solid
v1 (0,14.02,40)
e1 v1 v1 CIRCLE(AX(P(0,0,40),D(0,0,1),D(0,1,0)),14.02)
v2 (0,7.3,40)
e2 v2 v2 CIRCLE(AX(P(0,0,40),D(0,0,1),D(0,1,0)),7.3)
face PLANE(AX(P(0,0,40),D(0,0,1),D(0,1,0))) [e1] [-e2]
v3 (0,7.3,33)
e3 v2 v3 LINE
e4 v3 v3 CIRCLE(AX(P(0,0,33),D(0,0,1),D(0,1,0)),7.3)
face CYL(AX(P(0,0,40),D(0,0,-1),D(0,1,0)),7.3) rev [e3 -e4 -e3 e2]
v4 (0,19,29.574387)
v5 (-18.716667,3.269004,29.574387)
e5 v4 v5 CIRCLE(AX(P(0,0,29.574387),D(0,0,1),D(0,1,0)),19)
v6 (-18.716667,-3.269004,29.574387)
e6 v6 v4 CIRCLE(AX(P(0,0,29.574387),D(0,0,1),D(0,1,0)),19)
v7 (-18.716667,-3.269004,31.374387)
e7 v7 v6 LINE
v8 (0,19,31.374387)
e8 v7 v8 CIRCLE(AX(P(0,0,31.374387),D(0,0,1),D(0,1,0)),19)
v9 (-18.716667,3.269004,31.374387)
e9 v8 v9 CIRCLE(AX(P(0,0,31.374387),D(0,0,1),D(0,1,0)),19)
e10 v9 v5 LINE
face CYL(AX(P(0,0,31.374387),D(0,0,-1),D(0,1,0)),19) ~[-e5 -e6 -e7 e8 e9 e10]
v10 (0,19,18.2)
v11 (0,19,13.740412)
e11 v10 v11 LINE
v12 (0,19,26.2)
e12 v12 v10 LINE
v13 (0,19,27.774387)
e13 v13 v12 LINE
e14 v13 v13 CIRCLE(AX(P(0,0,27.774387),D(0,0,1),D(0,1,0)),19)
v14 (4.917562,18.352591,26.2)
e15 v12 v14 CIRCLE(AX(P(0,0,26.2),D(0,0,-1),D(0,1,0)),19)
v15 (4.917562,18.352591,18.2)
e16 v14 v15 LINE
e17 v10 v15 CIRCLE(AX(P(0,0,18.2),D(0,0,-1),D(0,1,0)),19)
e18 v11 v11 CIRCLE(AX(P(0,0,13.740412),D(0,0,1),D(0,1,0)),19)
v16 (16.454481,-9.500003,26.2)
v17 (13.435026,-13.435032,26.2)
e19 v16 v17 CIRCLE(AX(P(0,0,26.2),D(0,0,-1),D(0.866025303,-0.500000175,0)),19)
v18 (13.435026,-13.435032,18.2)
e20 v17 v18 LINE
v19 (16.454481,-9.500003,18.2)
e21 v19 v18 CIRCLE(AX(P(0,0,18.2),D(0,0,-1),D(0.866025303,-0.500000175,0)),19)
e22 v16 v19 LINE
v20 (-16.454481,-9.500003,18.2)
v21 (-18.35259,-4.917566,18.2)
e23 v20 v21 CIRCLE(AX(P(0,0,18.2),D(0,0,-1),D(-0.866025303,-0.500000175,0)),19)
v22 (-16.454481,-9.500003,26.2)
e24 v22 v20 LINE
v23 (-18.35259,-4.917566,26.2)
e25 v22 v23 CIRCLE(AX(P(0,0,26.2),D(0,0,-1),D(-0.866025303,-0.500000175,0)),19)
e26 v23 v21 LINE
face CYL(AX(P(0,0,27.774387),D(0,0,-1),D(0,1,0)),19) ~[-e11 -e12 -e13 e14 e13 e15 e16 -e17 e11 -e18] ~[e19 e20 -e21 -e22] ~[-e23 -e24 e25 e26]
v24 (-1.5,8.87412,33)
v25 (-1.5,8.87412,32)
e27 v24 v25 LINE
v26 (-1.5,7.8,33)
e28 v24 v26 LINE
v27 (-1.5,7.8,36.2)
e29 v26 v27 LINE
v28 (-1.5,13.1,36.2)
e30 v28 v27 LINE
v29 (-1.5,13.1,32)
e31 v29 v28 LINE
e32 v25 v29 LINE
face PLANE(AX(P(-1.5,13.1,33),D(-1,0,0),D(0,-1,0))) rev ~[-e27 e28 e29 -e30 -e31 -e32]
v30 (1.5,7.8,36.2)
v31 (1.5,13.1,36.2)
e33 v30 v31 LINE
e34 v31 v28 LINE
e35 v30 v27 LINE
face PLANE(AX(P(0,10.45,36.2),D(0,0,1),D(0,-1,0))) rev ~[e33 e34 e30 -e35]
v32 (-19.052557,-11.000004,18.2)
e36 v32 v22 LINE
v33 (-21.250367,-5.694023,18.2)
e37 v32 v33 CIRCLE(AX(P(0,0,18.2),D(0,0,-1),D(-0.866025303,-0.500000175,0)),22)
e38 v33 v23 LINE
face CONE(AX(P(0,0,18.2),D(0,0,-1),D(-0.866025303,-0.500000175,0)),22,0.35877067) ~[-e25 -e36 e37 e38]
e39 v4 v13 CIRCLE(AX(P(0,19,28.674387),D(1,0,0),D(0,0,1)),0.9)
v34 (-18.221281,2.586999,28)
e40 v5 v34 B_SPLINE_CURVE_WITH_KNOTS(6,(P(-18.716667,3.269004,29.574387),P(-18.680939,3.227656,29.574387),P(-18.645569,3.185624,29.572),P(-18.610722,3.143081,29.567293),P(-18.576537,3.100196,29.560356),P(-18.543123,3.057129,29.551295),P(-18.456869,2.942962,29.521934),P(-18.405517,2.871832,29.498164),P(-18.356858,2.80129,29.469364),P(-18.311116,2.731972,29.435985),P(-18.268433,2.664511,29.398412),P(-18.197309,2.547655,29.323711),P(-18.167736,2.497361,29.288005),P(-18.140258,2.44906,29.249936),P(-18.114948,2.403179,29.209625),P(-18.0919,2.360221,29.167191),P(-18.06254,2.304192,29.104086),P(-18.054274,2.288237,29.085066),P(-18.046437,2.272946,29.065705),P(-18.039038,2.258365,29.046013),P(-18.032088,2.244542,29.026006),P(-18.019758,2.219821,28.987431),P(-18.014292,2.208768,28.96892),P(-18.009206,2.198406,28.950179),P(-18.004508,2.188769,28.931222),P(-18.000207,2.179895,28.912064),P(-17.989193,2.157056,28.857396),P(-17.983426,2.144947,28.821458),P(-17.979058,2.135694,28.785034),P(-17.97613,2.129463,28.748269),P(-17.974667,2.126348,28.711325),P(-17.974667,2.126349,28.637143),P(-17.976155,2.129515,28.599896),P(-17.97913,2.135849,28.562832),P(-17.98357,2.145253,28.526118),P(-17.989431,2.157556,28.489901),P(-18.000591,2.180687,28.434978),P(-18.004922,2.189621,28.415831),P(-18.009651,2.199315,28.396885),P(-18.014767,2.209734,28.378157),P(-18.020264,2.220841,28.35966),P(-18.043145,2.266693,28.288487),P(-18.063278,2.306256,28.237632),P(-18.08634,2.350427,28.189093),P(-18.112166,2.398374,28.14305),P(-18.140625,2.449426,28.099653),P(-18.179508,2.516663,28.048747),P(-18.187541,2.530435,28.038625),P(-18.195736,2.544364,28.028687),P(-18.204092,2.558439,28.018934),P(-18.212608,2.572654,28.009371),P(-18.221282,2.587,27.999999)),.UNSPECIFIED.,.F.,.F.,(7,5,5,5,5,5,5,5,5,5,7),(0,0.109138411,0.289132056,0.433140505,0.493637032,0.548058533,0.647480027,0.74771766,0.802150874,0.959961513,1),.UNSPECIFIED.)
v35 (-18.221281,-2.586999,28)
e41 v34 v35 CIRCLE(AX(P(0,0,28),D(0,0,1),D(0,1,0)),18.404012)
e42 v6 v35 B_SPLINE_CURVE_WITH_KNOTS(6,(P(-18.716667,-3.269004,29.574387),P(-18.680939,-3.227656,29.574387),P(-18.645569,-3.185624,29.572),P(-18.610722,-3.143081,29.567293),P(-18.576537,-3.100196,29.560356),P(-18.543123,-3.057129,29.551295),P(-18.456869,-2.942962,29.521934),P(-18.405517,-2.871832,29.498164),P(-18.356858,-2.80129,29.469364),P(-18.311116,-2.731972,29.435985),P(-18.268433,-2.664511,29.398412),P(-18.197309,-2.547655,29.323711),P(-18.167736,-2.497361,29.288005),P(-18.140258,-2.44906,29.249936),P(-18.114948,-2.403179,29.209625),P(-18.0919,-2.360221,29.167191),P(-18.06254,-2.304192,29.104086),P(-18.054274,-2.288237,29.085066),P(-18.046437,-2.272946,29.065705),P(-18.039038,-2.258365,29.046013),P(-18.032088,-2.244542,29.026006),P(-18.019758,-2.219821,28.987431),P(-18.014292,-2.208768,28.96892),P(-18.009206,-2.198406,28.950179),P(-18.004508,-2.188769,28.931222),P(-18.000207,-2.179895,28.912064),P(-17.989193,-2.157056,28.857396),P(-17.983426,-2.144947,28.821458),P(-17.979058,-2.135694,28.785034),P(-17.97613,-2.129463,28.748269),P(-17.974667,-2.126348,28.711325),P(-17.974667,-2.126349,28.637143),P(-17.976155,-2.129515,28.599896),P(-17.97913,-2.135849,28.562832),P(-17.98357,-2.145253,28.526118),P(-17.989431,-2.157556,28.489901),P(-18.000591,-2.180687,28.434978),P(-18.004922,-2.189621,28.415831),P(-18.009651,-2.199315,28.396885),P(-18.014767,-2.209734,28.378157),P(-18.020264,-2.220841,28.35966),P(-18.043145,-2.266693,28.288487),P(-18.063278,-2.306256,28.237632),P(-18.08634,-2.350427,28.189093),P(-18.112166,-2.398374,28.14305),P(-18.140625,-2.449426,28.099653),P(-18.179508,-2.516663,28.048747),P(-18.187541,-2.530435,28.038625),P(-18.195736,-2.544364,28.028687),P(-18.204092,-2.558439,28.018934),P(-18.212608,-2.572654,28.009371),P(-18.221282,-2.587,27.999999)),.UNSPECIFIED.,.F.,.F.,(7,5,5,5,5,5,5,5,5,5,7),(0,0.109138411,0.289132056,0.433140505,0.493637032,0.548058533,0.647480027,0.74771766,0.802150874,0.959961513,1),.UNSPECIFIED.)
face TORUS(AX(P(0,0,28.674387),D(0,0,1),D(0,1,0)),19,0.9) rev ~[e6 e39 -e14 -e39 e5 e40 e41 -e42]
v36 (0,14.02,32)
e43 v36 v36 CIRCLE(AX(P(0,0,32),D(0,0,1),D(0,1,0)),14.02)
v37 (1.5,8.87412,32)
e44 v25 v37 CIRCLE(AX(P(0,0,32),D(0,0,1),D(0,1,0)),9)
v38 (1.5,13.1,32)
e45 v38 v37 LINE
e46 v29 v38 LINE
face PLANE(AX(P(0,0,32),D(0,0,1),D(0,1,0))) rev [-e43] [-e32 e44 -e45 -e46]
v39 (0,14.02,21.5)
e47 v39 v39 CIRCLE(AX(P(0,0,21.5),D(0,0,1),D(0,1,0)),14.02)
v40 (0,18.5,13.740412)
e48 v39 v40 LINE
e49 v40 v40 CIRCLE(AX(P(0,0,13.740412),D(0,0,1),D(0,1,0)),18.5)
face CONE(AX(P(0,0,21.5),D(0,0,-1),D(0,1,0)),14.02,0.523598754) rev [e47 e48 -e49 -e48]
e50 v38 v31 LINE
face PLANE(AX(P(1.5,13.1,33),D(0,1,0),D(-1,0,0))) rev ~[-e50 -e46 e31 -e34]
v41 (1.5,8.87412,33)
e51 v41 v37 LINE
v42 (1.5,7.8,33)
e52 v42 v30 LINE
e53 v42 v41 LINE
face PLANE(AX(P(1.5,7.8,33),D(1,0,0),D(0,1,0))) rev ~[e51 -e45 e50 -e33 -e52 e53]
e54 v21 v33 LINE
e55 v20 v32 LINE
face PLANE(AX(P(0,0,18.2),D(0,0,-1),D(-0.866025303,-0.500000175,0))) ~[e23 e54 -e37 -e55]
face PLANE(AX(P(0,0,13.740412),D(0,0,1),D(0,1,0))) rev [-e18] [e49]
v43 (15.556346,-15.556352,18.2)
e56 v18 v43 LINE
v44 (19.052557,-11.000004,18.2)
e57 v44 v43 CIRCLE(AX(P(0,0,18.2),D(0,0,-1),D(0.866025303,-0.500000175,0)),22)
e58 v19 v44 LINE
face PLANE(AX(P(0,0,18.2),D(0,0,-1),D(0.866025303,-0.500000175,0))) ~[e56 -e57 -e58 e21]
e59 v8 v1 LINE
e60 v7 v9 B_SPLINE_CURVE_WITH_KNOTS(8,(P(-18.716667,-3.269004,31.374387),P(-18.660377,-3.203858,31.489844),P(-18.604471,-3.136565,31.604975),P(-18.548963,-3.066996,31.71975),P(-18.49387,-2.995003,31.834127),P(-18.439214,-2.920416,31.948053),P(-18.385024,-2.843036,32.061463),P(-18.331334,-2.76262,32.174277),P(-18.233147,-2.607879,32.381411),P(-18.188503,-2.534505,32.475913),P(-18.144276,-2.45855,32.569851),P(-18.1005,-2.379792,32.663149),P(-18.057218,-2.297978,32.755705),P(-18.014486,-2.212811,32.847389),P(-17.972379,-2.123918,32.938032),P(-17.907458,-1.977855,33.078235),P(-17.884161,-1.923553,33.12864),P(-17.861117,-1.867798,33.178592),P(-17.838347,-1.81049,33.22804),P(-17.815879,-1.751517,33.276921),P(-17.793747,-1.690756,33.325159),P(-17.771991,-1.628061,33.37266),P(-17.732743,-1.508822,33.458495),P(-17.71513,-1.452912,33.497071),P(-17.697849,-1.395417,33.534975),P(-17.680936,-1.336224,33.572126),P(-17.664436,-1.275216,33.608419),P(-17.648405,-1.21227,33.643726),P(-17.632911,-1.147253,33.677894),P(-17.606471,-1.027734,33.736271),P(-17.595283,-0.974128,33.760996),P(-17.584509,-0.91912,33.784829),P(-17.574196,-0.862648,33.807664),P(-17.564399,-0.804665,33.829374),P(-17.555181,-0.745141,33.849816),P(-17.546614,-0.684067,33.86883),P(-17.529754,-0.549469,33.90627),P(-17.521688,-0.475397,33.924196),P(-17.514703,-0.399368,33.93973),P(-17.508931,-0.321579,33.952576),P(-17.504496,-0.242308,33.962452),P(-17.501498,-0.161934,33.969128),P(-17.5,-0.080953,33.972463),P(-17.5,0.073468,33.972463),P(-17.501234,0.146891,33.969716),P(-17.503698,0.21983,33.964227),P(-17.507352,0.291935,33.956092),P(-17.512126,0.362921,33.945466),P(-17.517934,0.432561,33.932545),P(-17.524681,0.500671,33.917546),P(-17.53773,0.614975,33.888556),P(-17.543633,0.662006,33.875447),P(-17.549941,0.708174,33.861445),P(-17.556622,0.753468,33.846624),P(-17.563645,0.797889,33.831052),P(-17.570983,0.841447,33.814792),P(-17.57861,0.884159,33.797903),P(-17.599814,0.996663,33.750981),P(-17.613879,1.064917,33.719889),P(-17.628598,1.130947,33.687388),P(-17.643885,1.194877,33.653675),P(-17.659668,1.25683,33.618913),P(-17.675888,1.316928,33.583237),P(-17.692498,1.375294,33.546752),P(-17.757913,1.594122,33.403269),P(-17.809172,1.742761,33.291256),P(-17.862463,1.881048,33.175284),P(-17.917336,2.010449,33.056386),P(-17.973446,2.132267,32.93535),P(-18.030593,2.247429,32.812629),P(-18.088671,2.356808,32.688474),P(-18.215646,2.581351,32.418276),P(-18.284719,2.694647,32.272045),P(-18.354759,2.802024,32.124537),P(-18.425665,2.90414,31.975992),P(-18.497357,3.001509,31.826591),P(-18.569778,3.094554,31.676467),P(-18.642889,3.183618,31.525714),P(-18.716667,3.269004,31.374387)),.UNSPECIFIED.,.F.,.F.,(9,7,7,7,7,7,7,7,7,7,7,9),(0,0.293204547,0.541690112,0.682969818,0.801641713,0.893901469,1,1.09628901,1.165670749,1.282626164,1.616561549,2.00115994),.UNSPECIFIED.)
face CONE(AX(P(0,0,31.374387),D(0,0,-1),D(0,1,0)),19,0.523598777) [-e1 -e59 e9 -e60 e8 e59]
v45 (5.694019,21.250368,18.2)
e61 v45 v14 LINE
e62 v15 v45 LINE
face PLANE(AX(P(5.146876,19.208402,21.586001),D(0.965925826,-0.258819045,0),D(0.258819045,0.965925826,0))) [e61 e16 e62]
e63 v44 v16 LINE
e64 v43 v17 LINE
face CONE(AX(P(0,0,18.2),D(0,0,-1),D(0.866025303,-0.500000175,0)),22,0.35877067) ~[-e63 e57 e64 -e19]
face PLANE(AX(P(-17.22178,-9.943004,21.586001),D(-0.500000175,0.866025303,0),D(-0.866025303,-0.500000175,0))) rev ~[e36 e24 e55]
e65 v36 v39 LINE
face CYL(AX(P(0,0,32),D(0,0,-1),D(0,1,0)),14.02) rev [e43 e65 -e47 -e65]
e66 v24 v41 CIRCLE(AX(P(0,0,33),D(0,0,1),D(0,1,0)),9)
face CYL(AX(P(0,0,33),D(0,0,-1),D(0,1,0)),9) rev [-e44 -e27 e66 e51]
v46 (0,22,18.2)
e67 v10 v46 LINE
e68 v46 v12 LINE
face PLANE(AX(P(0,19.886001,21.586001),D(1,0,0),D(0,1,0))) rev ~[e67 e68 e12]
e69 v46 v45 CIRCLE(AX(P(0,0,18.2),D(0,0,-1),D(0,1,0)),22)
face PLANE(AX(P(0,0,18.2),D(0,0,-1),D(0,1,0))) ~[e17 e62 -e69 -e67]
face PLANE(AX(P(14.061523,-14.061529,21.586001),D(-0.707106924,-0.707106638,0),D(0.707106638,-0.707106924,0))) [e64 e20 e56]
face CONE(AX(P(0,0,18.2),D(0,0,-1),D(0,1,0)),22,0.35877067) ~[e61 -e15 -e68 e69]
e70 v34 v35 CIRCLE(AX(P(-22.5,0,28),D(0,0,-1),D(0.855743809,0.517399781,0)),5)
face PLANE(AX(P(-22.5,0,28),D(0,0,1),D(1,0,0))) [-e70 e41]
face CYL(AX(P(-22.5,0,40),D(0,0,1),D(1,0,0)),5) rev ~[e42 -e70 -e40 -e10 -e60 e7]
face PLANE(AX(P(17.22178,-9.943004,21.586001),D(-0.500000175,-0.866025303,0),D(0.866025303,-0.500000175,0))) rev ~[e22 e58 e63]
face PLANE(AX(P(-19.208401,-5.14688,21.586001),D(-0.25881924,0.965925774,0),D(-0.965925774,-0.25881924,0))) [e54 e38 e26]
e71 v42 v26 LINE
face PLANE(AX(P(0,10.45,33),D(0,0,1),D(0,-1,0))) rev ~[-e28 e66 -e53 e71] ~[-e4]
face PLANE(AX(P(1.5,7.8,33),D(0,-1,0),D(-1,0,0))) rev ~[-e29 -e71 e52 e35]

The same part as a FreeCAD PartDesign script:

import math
import FreeCAD as App
import Part
import Sketcher
from FreeCAD import Vector
Q = App.Units.Quantity

doc = App.newDocument("Part")
body = doc.addObject("PartDesign::Body", "Body")

# Sketch on YZ plane
sketch1 = doc.addObject("Sketcher::SketchObject", "Sketch")
body.addObject(sketch1)
sketch1.AttachmentSupport = (doc.YZ_Plane, [""])
sketch1.MapMode = "FlatFace"
sketch1.addGeometry([
    Part.LineSegment(Vector(14.02, -8, 0), Vector(14.02, -18.5, 0)),  # 0
    Part.LineSegment(Vector(14.02, -18.5, 0), Vector(18.5, -26.259588, 0)),  # 1
    Part.LineSegment(Vector(18.5, -26.259588, 0), Vector(19, -26.259588, 0)),  # 2
    Part.LineSegment(Vector(19, -26.259588, 0), Vector(19, -12.225613, 0)),  # 3
    Part.ArcOfCircle(Part.Circle(Vector(19, -11.325613, 0), Vector(0, 0, 1), 0.9), math.radians(90), math.radians(270)),  # 4
    Part.LineSegment(Vector(19, -10.425613, 0), Vector(19, -8.625613, 0)),  # 5
    Part.LineSegment(Vector(19, -8.625613, 0), Vector(14.02, 0, 0)),  # 6
    Part.LineSegment(Vector(14.02, 0, 0), Vector(7.3, 0, 0)),  # 7
    Part.LineSegment(Vector(7.3, 0, 0), Vector(7.3, -7, 0)),  # 8
    Part.LineSegment(Vector(7.3, -7, 0), Vector(9, -7, 0)),  # 9
    Part.LineSegment(Vector(9, -7, 0), Vector(9, -8, 0)),  # 10
    Part.LineSegment(Vector(9, -8, 0), Vector(14.02, -8, 0)),  # 11
], False)
sketch1.addConstraint([
    Sketcher.Constraint("Coincident", 0, 2, 1, 1),
    Sketcher.Constraint("Coincident", 1, 2, 2, 1),
    Sketcher.Constraint("Coincident", 2, 2, 3, 1),
    Sketcher.Constraint("Coincident", 3, 2, 4, 2),
    Sketcher.Constraint("Coincident", 4, 1, 5, 1),
    Sketcher.Constraint("Coincident", 5, 2, 6, 1),
    Sketcher.Constraint("Coincident", 6, 2, 7, 1),
    Sketcher.Constraint("Coincident", 7, 2, 8, 1),
    Sketcher.Constraint("Coincident", 8, 2, 9, 1),
    Sketcher.Constraint("Coincident", 9, 2, 10, 1),
    Sketcher.Constraint("Coincident", 10, 2, 11, 1),
    Sketcher.Constraint("Coincident", 11, 2, 0, 1),
    Sketcher.Constraint("Vertical", 0),
    Sketcher.Constraint("Horizontal", 2),
    Sketcher.Constraint("Vertical", 3),
    Sketcher.Constraint("Vertical", 5),
    Sketcher.Constraint("Horizontal", 7),
    Sketcher.Constraint("Vertical", 8),
    Sketcher.Constraint("Horizontal", 9),
    Sketcher.Constraint("Vertical", 10),
    Sketcher.Constraint("Horizontal", 11),
    Sketcher.Constraint("PointOnObject", 6, 2, -1),
    Sketcher.Constraint("Parallel", 1, 6),
    Sketcher.Constraint("Vertical", 4, 3, 2, 2),
    Sketcher.Constraint("Vertical", 3, 2, 4, 1),
    Sketcher.Constraint("Vertical", 0, 2, 6, 2),
    Sketcher.Constraint("Radius", 4, 0.9),
    Sketcher.Constraint("DistanceY", 8, 2, 8, 1, 7.0),
    Sketcher.Constraint("DistanceY", 10, 2, 10, 1, 1.0),
    Sketcher.Constraint("Angle", 1, Q("-60.000001 deg")),
    Sketcher.Constraint("DistanceX", 2, 1, 2, 2, 0.5),
    Sketcher.Constraint("DistanceX", 9, 1, 9, 2, 1.7),
    Sketcher.Constraint("DistanceY", 0, 2, 0, 1, 10.5),
    Sketcher.Constraint("DistanceY", 5, 1, 5, 2, 1.8),
    Sketcher.Constraint("DistanceX", -1, 1, 4, 3, 19.0),
    Sketcher.Constraint("DistanceX", -1, 1, 9, 2, 9.0),
    Sketcher.Constraint("DistanceX", 7, 2, 7, 1, 6.72),
])
revolution = doc.addObject("PartDesign::Revolution", "Revolution")
body.addObject(revolution)
revolution.Profile = sketch1
revolution.ReferenceAxis = (sketch1, ["V_Axis"])
revolution.Angle = 360

# Sketch on YZ plane
sketch2 = doc.addObject("Sketcher::SketchObject", "Sketch001")
body.addObject(sketch2)
sketch2.AttachmentSupport = (doc.YZ_Plane, [""])
sketch2.MapMode = "FlatFace"
sketch2.addGeometry([
    Part.LineSegment(Vector(19, -13.8, 0), Vector(19, -21.8, 0)),
    Part.LineSegment(Vector(19, -21.8, 0), Vector(22, -21.8, 0)),
    Part.LineSegment(Vector(22, -21.8, 0), Vector(19, -13.8, 0)),
], False)
sketch2.addConstraint([
    Sketcher.Constraint("Coincident", 0, 2, 1, 1),
    Sketcher.Constraint("Coincident", 1, 2, 2, 1),
    Sketcher.Constraint("Coincident", 2, 2, 0, 1),
    Sketcher.Constraint("Vertical", 0),
    Sketcher.Constraint("Horizontal", 1),
    Sketcher.Constraint("DistanceX", 1, 1, 1, 2, 3.0),
    Sketcher.Constraint("DistanceY", 0, 2, 0, 1, 8.0),
    Sketcher.Constraint("DistanceX", -1, 1, 0, 2, 19.0),
    Sketcher.Constraint("DistanceY", 0, 2, -1, 1, 21.8),
])
revolution2 = doc.addObject("PartDesign::Revolution", "Revolution001")
body.addObject(revolution2)
revolution2.Profile = sketch2
revolution2.ReferenceAxis = (sketch2, ["V_Axis"])
revolution2.Angle = 15
revolution2.Reversed = True

# Sketch on an angled plane
sketch3 = doc.addObject("Sketcher::SketchObject", "Sketch002")
body.addObject(sketch3)
sketch3.Placement = App.Placement(Vector(0, 0, 0), App.Rotation(Vector(-0.866025303, -0.500000175, 0), Vector(0, 0, 1), Vector(-0.500000175, 0.866025303, 0), "ZXY"))
sketch3.addGeometry([
    Part.LineSegment(Vector(19, -13.8, 0), Vector(19, -21.8, 0)),
    Part.LineSegment(Vector(19, -21.8, 0), Vector(22, -21.8, 0)),
    Part.LineSegment(Vector(22, -21.8, 0), Vector(19, -13.8, 0)),
], False)
sketch3.addConstraint([
    Sketcher.Constraint("Coincident", 0, 2, 1, 1),
    Sketcher.Constraint("Coincident", 1, 2, 2, 1),
    Sketcher.Constraint("Coincident", 2, 2, 0, 1),
    Sketcher.Constraint("Vertical", 0),
    Sketcher.Constraint("Horizontal", 1),
    Sketcher.Constraint("DistanceX", 1, 1, 1, 2, 3.0),
    Sketcher.Constraint("DistanceY", 0, 2, 0, 1, 8.0),
    Sketcher.Constraint("DistanceX", -1, 1, 0, 2, 19.0),
    Sketcher.Constraint("DistanceY", 0, 2, -1, 1, 21.8),
])
revolution3 = doc.addObject("PartDesign::Revolution", "Revolution002")
body.addObject(revolution3)
revolution3.Profile = sketch3
revolution3.ReferenceAxis = (sketch3, ["V_Axis"])
revolution3.Angle = 15
revolution3.Reversed = True

# Sketch on an angled plane
sketch4 = doc.addObject("Sketcher::SketchObject", "Sketch003")
body.addObject(sketch4)
sketch4.Placement = App.Placement(Vector(0, 0, 0), App.Rotation(Vector(0.866025303, -0.500000175, 0), Vector(0, 0, 1), Vector(-0.500000175, -0.866025303, 0), "ZXY"))
sketch4.addGeometry([
    Part.LineSegment(Vector(19, -13.8, 0), Vector(19, -21.8, 0)),
    Part.LineSegment(Vector(19, -21.8, 0), Vector(22, -21.8, 0)),
    Part.LineSegment(Vector(22, -21.8, 0), Vector(19, -13.8, 0)),
], False)
sketch4.addConstraint([
    Sketcher.Constraint("Coincident", 0, 2, 1, 1),
    Sketcher.Constraint("Coincident", 1, 2, 2, 1),
    Sketcher.Constraint("Coincident", 2, 2, 0, 1),
    Sketcher.Constraint("Vertical", 0),
    Sketcher.Constraint("Horizontal", 1),
    Sketcher.Constraint("DistanceX", 1, 1, 1, 2, 3.0),
    Sketcher.Constraint("DistanceY", 0, 2, 0, 1, 8.0),
    Sketcher.Constraint("DistanceX", -1, 1, 0, 2, 19.0),
    Sketcher.Constraint("DistanceY", 0, 2, -1, 1, 21.8),
])
revolution4 = doc.addObject("PartDesign::Revolution", "Revolution003")
body.addObject(revolution4)
revolution4.Profile = sketch4
revolution4.ReferenceAxis = (sketch4, ["V_Axis"])
revolution4.Angle = 15
revolution4.Reversed = True

# Sketch on XY plane
sketch5 = doc.addObject("Sketcher::SketchObject", "Sketch004")
body.addObject(sketch5)
sketch5.AttachmentSupport = (doc.XY_Plane, [""])
sketch5.MapMode = "FlatFace"
sketch5.AttachmentOffset = App.Placement(Vector(0, 0, -7), App.Rotation())
sketch5.addGeometry([
    Part.LineSegment(Vector(1.5, 7.8, 0), Vector(-1.5, 7.8, 0)),
    Part.LineSegment(Vector(-1.5, 7.8, 0), Vector(-1.5, 13.1, 0)),
    Part.LineSegment(Vector(-1.5, 13.1, 0), Vector(1.5, 13.1, 0)),
    Part.LineSegment(Vector(1.5, 13.1, 0), Vector(1.5, 7.8, 0)),
], False)
sketch5.addConstraint([
    Sketcher.Constraint("Coincident", 0, 2, 1, 1),
    Sketcher.Constraint("Coincident", 1, 2, 2, 1),
    Sketcher.Constraint("Coincident", 2, 2, 3, 1),
    Sketcher.Constraint("Coincident", 3, 2, 0, 1),
    Sketcher.Constraint("Horizontal", 0),
    Sketcher.Constraint("Vertical", 1),
    Sketcher.Constraint("Horizontal", 2),
    Sketcher.Constraint("Vertical", 3),
    Sketcher.Constraint("DistanceX", 0, 2, 0, 1, 3.0),
    Sketcher.Constraint("DistanceY", 1, 1, 1, 2, 5.3),
    Sketcher.Constraint("DistanceX", 0, 2, -1, 1, 1.5),
    Sketcher.Constraint("DistanceY", -1, 1, 0, 2, 7.8),
])
pocket1 = doc.addObject("PartDesign::Pocket", "Pocket")
body.addObject(pocket1)
pocket1.Profile = sketch5
pocket1.Type = "TwoLengths"
pocket1.Length = 5
pocket1.Length2 = 3.2

# Sketch on XY plane
sketch6 = doc.addObject("Sketcher::SketchObject", "Sketch005")
body.addObject(sketch6)
sketch6.AttachmentSupport = (doc.XY_Plane, [""])
sketch6.MapMode = "FlatFace"
sketch6.addGeometry(Part.Circle(Vector(-22.5, 0, 0), Vector(0, 0, 1), 5), False)
sketch6.addConstraint([
    Sketcher.Constraint("PointOnObject", 0, 3, -1),
    Sketcher.Constraint("Diameter", 0, 10.0),
    Sketcher.Constraint("DistanceX", 0, 3, -1, 1, 22.5),
])
pocket2 = doc.addObject("PartDesign::Pocket", "Pocket001")
body.addObject(pocket2)
pocket2.Profile = sketch6
pocket2.Length = 12
body2 = doc.addObject("PartDesign::Body", "Body001")
doc.recompute()

body.Placement = App.Placement(Vector(0, 0, 40), App.Rotation(Vector(0, 0, 1), 0))
boolean = doc.addObject("PartDesign::Boolean", "Boolean")
body2.addObject(boolean)
boolean.Type = "Fuse"
boolean.addObjects([body])

doc.recompute()
